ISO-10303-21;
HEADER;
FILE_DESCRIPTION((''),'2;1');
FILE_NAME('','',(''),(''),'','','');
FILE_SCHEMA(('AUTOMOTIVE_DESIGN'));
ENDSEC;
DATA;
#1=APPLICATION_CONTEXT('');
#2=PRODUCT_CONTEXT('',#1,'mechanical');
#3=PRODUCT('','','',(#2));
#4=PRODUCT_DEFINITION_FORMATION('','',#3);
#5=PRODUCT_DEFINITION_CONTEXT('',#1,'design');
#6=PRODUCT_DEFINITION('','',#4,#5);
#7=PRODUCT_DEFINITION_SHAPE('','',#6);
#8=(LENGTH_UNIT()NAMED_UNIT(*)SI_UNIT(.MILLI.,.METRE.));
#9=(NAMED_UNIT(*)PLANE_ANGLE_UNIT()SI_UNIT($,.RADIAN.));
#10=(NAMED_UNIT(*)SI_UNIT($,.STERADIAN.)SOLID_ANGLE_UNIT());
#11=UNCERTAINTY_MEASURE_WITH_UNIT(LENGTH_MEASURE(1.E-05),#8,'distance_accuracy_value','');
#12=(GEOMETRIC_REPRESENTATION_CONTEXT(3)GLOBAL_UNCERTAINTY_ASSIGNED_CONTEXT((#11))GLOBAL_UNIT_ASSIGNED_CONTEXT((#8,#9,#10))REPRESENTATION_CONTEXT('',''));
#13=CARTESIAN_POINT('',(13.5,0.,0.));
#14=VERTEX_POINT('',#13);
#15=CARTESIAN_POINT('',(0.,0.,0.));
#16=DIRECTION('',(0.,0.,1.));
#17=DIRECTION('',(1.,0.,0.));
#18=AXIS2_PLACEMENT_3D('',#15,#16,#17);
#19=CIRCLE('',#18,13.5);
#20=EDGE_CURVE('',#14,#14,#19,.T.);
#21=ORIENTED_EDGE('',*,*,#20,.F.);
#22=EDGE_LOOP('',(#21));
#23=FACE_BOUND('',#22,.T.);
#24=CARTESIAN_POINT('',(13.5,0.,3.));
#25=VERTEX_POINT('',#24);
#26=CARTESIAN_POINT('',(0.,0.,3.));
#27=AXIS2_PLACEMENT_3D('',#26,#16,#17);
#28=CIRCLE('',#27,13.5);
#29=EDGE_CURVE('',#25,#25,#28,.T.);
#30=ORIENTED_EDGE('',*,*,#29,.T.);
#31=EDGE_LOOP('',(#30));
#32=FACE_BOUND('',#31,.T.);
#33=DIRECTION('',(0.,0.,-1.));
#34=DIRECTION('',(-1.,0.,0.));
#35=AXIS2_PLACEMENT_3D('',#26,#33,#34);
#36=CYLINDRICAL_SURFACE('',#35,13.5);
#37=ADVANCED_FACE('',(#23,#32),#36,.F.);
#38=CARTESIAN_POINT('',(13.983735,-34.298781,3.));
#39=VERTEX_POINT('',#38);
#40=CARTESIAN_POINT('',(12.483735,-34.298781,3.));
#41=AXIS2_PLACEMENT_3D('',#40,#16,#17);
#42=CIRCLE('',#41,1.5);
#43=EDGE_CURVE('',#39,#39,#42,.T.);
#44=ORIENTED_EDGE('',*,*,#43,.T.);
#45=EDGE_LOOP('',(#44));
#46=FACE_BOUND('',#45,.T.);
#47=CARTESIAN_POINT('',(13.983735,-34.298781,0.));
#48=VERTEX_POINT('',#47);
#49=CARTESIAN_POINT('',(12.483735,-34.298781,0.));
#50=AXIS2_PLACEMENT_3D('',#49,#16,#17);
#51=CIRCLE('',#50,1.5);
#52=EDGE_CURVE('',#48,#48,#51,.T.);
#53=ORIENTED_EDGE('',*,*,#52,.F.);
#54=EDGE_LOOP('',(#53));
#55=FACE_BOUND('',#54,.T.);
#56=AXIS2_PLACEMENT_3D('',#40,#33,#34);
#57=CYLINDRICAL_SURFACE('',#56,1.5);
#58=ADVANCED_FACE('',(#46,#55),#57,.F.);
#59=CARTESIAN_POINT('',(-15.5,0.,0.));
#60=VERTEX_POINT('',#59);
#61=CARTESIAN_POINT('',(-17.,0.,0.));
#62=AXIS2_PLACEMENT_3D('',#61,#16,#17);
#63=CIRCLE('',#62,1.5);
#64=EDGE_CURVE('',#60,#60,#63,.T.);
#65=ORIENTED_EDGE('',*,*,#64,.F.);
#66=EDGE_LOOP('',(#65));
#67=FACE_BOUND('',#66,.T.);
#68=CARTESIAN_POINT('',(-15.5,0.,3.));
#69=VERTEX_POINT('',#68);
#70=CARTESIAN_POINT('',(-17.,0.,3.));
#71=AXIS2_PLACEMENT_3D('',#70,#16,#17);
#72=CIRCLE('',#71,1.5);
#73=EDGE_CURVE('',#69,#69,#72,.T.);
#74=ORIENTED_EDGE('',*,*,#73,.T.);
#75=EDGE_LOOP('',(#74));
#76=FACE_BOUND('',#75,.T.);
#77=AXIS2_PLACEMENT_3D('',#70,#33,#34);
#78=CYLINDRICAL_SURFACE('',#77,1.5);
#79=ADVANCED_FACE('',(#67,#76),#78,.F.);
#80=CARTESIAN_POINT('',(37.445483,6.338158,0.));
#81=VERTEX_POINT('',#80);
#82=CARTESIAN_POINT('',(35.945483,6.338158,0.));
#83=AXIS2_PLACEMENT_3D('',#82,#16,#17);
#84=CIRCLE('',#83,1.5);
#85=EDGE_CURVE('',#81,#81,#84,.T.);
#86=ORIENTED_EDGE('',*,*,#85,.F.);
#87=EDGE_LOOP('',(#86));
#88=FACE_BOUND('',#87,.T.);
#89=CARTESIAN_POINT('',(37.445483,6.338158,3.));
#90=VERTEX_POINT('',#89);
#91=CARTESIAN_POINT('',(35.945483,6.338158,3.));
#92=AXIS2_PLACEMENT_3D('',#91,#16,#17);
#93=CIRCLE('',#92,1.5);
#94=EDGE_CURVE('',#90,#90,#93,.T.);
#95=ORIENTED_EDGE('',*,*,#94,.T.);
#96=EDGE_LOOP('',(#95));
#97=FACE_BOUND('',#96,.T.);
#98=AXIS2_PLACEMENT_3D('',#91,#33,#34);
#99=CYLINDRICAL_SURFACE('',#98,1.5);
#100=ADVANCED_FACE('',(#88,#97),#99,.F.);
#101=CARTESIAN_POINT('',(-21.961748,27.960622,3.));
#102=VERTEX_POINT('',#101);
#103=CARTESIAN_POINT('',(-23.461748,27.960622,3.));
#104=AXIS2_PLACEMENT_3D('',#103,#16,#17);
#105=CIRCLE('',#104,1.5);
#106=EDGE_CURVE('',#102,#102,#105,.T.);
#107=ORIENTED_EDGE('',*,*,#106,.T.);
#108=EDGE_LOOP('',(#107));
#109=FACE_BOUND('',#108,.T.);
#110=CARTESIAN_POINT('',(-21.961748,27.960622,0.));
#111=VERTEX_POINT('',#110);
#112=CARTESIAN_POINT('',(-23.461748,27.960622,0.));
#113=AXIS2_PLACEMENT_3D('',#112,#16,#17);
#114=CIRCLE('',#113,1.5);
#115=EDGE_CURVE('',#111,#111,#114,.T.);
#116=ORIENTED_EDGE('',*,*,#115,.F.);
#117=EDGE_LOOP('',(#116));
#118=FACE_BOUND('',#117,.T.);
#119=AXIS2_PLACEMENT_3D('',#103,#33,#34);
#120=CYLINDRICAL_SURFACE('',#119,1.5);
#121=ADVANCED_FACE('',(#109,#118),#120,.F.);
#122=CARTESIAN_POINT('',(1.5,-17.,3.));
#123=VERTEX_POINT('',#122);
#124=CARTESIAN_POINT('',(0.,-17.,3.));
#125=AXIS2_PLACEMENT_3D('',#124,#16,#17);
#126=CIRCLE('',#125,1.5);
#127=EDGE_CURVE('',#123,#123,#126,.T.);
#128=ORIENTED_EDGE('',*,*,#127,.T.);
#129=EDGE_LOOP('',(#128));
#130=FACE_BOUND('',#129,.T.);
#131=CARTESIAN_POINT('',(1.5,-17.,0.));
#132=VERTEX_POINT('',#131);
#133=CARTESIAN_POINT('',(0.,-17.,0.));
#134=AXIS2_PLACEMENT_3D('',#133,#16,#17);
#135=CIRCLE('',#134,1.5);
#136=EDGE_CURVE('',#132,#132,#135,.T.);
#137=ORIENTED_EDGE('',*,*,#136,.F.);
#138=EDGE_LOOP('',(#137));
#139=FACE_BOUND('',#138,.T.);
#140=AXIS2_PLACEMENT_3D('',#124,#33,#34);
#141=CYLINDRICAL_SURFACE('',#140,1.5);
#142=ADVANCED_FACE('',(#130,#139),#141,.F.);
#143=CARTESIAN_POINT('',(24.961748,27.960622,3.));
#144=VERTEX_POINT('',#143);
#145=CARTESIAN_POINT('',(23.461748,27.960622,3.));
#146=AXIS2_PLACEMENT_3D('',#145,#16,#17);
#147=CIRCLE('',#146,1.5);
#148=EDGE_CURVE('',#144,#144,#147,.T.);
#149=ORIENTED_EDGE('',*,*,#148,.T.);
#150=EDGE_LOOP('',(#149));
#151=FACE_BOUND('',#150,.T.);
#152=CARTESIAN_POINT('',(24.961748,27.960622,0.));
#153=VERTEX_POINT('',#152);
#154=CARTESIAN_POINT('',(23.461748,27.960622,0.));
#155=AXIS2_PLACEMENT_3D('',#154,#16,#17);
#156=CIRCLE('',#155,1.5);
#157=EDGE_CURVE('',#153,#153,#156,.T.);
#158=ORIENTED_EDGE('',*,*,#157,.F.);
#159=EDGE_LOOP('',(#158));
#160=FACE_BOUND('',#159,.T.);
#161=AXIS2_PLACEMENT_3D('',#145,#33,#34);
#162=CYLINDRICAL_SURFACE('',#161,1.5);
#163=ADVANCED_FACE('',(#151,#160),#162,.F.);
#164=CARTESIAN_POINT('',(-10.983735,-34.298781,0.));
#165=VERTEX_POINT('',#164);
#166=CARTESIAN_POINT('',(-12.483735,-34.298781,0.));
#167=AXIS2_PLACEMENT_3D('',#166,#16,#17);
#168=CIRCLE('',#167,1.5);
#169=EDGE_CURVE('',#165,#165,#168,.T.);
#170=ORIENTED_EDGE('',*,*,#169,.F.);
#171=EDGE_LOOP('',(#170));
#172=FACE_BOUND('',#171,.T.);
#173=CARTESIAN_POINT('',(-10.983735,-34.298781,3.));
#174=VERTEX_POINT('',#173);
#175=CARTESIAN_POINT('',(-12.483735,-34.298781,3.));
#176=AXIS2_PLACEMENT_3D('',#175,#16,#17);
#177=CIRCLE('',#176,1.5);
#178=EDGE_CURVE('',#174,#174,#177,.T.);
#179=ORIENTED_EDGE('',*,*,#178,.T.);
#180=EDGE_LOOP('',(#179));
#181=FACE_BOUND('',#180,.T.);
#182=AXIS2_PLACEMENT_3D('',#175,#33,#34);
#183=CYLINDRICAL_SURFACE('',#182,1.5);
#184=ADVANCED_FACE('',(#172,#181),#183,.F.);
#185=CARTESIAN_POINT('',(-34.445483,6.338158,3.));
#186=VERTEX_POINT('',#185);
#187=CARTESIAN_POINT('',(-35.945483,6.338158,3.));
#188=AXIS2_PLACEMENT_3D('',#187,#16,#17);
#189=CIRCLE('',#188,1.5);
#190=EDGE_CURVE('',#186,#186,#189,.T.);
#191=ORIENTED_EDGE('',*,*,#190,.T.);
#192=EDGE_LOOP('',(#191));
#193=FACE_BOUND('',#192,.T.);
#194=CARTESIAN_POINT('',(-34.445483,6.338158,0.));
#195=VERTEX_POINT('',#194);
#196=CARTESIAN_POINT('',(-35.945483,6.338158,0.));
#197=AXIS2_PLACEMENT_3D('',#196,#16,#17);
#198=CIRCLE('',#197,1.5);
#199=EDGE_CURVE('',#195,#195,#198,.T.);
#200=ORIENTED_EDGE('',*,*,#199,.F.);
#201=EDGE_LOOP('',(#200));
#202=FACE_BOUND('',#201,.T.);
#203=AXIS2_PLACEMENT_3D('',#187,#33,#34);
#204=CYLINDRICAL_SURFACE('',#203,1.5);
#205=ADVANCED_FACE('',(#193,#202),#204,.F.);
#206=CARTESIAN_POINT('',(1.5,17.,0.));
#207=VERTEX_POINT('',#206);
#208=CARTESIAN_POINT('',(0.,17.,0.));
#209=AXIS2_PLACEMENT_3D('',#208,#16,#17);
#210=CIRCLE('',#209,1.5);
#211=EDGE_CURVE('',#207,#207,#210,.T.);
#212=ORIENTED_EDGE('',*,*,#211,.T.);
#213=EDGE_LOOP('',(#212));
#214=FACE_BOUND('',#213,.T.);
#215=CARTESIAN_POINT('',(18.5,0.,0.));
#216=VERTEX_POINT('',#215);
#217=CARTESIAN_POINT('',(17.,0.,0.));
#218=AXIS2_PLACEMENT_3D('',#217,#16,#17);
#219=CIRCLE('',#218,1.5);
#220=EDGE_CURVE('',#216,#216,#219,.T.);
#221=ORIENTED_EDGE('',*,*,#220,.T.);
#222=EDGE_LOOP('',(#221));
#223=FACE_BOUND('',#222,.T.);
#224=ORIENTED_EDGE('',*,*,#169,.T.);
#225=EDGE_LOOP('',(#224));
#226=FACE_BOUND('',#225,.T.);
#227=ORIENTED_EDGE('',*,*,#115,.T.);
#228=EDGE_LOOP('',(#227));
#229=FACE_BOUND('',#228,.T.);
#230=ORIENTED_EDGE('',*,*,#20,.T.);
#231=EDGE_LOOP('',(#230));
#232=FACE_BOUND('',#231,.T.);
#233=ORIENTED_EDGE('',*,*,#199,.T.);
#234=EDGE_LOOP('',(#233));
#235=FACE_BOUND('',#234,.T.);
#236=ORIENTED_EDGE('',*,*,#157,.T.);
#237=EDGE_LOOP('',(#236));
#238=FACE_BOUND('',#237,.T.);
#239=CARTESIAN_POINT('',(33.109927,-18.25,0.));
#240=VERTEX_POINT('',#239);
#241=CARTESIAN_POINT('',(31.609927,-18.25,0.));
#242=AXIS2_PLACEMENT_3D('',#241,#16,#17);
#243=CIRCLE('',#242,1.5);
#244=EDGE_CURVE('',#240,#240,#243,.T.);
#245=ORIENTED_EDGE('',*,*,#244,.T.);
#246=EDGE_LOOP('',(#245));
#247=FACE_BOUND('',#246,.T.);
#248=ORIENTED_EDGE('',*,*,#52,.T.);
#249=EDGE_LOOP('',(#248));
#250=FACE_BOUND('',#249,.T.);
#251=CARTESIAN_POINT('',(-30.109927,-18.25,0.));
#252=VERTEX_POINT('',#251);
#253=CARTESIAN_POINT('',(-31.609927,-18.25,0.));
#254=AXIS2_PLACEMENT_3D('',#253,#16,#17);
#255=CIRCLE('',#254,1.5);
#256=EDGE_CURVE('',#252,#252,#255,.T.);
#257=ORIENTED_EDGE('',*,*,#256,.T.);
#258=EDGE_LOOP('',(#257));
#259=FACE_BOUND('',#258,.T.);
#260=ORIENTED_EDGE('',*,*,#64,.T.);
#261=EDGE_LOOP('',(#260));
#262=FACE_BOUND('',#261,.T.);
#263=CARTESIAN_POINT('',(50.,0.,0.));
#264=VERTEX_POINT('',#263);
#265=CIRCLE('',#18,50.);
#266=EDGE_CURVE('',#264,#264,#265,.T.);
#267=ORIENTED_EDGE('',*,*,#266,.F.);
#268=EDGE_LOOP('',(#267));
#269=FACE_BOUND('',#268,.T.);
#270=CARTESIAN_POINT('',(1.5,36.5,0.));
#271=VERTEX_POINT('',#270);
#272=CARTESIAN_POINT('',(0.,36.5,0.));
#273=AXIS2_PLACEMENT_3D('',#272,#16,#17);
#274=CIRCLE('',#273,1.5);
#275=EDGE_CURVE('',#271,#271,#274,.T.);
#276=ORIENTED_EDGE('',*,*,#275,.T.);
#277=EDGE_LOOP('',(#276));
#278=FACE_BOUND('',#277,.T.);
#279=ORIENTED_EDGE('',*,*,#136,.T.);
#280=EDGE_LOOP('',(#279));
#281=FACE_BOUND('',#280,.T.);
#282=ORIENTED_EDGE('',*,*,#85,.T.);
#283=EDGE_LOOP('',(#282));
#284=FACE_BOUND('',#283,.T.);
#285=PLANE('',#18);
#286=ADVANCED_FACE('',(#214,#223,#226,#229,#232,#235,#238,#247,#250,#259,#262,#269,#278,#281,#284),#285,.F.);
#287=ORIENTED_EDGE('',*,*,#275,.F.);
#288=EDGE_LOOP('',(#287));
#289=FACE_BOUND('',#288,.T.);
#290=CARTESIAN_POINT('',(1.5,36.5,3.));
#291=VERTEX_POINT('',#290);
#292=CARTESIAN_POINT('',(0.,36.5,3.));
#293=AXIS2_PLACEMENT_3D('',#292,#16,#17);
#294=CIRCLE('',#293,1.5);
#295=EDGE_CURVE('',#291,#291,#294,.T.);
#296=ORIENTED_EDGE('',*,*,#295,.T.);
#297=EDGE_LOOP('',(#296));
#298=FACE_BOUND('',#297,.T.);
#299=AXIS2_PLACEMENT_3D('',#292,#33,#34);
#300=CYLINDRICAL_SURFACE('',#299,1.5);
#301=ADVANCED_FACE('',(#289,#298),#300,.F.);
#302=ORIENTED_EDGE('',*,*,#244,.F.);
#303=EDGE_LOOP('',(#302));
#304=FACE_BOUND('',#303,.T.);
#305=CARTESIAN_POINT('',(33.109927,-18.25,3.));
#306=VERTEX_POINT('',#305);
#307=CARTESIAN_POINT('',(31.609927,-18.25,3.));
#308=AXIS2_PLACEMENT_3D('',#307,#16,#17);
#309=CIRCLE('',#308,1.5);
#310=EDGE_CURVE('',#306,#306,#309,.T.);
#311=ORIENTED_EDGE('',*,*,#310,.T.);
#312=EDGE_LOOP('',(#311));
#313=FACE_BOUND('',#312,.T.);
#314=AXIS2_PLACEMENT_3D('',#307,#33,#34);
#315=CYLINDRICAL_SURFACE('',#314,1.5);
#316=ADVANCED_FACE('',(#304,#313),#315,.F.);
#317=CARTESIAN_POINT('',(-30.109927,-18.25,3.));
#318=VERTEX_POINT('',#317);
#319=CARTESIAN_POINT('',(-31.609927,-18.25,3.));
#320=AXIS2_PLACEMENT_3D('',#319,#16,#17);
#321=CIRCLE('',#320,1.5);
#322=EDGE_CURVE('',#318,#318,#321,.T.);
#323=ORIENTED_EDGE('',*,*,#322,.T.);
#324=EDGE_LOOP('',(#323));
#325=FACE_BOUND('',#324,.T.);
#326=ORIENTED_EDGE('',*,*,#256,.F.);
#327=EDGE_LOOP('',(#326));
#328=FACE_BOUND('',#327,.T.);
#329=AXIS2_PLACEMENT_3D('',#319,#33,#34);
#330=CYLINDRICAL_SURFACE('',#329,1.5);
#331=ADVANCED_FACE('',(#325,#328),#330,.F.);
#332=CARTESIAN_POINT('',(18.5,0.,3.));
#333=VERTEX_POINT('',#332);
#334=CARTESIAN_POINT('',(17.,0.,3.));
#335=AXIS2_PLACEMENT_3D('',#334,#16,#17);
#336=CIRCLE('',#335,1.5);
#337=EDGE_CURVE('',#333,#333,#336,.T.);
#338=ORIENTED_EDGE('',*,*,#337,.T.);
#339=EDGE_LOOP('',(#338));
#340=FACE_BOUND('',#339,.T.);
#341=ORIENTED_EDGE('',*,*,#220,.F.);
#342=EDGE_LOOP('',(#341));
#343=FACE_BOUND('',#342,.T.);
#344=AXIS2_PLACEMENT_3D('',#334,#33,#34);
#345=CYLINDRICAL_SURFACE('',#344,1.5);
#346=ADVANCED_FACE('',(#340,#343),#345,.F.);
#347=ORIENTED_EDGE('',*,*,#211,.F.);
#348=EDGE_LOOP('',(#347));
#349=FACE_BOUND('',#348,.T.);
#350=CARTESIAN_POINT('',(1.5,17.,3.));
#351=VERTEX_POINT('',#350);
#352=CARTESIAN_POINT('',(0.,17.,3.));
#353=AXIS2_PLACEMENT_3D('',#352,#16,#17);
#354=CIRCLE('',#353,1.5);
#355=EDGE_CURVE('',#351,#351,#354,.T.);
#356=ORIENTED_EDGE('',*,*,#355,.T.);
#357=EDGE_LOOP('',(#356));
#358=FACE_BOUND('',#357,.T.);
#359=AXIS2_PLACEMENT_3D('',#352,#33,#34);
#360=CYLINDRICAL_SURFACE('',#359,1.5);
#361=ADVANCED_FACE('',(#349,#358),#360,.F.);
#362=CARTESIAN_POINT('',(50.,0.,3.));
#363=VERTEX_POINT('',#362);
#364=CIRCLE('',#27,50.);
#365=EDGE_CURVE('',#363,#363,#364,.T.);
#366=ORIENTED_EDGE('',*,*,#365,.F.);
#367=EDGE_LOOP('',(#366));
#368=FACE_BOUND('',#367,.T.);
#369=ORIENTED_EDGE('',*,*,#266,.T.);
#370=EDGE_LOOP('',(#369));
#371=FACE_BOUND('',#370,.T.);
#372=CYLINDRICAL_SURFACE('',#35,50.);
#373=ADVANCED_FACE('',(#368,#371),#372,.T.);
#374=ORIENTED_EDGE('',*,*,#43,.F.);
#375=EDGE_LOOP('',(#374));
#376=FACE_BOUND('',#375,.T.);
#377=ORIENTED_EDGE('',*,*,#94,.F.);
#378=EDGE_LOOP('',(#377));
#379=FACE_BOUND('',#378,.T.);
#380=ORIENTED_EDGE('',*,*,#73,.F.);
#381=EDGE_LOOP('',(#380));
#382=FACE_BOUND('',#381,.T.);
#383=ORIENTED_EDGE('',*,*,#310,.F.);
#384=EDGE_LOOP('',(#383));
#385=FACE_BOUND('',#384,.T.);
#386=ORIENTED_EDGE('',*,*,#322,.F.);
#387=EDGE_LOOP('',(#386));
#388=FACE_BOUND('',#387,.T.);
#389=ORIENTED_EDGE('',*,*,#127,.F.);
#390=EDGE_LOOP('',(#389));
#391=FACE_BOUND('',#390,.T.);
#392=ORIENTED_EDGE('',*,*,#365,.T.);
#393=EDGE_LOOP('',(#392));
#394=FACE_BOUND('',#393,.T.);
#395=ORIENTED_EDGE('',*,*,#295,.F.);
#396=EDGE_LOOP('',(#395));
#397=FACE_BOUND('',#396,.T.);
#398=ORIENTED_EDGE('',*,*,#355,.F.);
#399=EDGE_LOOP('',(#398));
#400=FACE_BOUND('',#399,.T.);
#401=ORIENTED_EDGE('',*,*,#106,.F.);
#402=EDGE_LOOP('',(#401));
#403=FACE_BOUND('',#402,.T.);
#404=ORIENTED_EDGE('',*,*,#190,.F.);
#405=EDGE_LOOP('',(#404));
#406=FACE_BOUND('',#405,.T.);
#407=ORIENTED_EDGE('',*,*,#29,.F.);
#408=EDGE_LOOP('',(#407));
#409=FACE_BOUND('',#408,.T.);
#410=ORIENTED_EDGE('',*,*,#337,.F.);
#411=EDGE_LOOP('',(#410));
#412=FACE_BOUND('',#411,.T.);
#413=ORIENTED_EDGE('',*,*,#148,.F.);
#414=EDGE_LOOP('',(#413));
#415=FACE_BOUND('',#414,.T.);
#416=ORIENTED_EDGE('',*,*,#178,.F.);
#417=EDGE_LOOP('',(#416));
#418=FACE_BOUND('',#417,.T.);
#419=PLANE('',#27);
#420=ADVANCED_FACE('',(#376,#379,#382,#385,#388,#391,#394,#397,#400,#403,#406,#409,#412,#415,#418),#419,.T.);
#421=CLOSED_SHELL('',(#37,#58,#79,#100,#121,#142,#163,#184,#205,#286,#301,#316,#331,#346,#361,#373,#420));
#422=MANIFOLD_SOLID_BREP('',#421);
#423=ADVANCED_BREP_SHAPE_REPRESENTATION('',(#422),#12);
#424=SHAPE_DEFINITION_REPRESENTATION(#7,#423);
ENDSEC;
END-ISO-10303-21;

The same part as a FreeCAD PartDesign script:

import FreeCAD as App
import Part
import Sketcher

V = App.Vector
Q = App.Units.Quantity

doc = App.newDocument("Part")
body = doc.addObject("PartDesign::Body", "Body")

sketch1 = body.newObject("Sketcher::SketchObject", "Sketch")
sketch1.AttachmentSupport = (doc.getObject("XY_Plane"), [""])
sketch1.MapMode = "FlatFace"
sketch1.addGeometry([
    Part.Circle(V(0, 0, 0), V(0, 0, 1), 50),
    Part.Circle(V(-31.6, -18.2, 0), V(0, 0, 1), 1.5),
    Part.Circle(V(-12.5, -34.3, 0), V(0, 0, 1), 1.5),
    Part.Circle(V(-17, 0, 0), V(0, 0, 1), 1.5),
    Part.Circle(V(12.5, -34.3, 0), V(0, 0, 1), 1.5),
    Part.Circle(V(31.6, -18.2, 0), V(0, 0, 1), 1.5),
    Part.Circle(V(0, -17, 0), V(0, 0, 1), 1.5),
    Part.Circle(V(0, 0, 0), V(0, 0, 1), 13.5),
    Part.Circle(V(17, 0, 0), V(0, 0, 1), 1.5),
    Part.Circle(V(-35.9, 6.3, 0), V(0, 0, 1), 1.5),
    Part.Circle(V(-23.5, 28, 0), V(0, 0, 1), 1.5),
    Part.Circle(V(0, 17, 0), V(0, 0, 1), 1.5),
    Part.Circle(V(35.9, 6.3, 0), V(0, 0, 1), 1.5),
    Part.Circle(V(0, 36.5, 0), V(0, 0, 1), 1.5),
    Part.Circle(V(23.5, 28, 0), V(0, 0, 1), 1.5),
], False)
sketch1.addConstraint([
    Sketcher.Constraint("Coincident", 0, 3, -1, 1),
    Sketcher.Constraint("Coincident", 7, 3, -1, 1),
    Sketcher.Constraint("Equal", 1, 2),
    Sketcher.Constraint("Equal", 2, 3),
    Sketcher.Constraint("Equal", 3, 4),
    Sketcher.Constraint("Equal", 4, 5),
    Sketcher.Constraint("Equal", 5, 6),
    Sketcher.Constraint("Equal", 6, 8),
    Sketcher.Constraint("Equal", 8, 9),
    Sketcher.Constraint("Equal", 9, 10),
    Sketcher.Constraint("Equal", 10, 11),
    Sketcher.Constraint("Equal", 11, 12),
    Sketcher.Constraint("Equal", 12, 13),
    Sketcher.Constraint("Equal", 13, 14),
    Sketcher.Constraint("Symmetric", 3, 3, 8, 3, -1, 1),
    Sketcher.Constraint("Symmetric", 6, 3, 11, 3, -1, 1),
    Sketcher.Constraint("Symmetric", 2, 3, 4, 3, -2),
    Sketcher.Constraint("Symmetric", 1, 3, 5, 3, -2),
    Sketcher.Constraint("Symmetric", 9, 3, 12, 3, -2),
    Sketcher.Constraint("Symmetric", 10, 3, 14, 3, -2),
    Sketcher.Constraint("PointOnObject", 3, 3, -1),
    Sketcher.Constraint("PointOnObject", 6, 3, -2),
    Sketcher.Constraint("PointOnObject", 13, 3, -2),
    Sketcher.Constraint("Diameter", 0, Q("100 mm")),
    Sketcher.Constraint("Diameter", 1, Q("3 mm")),
    Sketcher.Constraint("Diameter", 7, Q("27 mm")),
    Sketcher.Constraint("DistanceX", 3, 3, -1, 1, Q("17 mm")),
    Sketcher.Constraint("DistanceY", 6, 3, -1, 1, Q("17 mm")),
    Sketcher.Constraint("DistanceY", -1, 1, 13, 3, Q("36.5 mm")),
    Sketcher.Constraint("DistanceY", 1, 3, -1, 1, Q("18.25 mm")),
    Sketcher.Constraint("DistanceY", 2, 3, -1, 1, Q("34.298781 mm")),
    Sketcher.Constraint("DistanceY", -1, 1, 9, 3, Q("6.338158 mm")),
    Sketcher.Constraint("DistanceX", 2, 3, 4, 3, Q("24.96747 mm")),
    Sketcher.Constraint("DistanceX", 1, 3, 10, 3, Q("8.148179 mm")),
    Sketcher.Constraint("DistanceX", 1, 3, -1, 1, Q("31.609927 mm")),
    Sketcher.Constraint("DistanceX", 9, 3, -1, 1, Q("35.945483 mm")),
    Sketcher.Constraint("DistanceY", -1, 1, 10, 3, Q("27.960622 mm")),
])
pad1 = body.newObject("PartDesign::Pad", "Pad")
pad1.Profile = sketch1
pad1.Length = 3

doc.recompute()
